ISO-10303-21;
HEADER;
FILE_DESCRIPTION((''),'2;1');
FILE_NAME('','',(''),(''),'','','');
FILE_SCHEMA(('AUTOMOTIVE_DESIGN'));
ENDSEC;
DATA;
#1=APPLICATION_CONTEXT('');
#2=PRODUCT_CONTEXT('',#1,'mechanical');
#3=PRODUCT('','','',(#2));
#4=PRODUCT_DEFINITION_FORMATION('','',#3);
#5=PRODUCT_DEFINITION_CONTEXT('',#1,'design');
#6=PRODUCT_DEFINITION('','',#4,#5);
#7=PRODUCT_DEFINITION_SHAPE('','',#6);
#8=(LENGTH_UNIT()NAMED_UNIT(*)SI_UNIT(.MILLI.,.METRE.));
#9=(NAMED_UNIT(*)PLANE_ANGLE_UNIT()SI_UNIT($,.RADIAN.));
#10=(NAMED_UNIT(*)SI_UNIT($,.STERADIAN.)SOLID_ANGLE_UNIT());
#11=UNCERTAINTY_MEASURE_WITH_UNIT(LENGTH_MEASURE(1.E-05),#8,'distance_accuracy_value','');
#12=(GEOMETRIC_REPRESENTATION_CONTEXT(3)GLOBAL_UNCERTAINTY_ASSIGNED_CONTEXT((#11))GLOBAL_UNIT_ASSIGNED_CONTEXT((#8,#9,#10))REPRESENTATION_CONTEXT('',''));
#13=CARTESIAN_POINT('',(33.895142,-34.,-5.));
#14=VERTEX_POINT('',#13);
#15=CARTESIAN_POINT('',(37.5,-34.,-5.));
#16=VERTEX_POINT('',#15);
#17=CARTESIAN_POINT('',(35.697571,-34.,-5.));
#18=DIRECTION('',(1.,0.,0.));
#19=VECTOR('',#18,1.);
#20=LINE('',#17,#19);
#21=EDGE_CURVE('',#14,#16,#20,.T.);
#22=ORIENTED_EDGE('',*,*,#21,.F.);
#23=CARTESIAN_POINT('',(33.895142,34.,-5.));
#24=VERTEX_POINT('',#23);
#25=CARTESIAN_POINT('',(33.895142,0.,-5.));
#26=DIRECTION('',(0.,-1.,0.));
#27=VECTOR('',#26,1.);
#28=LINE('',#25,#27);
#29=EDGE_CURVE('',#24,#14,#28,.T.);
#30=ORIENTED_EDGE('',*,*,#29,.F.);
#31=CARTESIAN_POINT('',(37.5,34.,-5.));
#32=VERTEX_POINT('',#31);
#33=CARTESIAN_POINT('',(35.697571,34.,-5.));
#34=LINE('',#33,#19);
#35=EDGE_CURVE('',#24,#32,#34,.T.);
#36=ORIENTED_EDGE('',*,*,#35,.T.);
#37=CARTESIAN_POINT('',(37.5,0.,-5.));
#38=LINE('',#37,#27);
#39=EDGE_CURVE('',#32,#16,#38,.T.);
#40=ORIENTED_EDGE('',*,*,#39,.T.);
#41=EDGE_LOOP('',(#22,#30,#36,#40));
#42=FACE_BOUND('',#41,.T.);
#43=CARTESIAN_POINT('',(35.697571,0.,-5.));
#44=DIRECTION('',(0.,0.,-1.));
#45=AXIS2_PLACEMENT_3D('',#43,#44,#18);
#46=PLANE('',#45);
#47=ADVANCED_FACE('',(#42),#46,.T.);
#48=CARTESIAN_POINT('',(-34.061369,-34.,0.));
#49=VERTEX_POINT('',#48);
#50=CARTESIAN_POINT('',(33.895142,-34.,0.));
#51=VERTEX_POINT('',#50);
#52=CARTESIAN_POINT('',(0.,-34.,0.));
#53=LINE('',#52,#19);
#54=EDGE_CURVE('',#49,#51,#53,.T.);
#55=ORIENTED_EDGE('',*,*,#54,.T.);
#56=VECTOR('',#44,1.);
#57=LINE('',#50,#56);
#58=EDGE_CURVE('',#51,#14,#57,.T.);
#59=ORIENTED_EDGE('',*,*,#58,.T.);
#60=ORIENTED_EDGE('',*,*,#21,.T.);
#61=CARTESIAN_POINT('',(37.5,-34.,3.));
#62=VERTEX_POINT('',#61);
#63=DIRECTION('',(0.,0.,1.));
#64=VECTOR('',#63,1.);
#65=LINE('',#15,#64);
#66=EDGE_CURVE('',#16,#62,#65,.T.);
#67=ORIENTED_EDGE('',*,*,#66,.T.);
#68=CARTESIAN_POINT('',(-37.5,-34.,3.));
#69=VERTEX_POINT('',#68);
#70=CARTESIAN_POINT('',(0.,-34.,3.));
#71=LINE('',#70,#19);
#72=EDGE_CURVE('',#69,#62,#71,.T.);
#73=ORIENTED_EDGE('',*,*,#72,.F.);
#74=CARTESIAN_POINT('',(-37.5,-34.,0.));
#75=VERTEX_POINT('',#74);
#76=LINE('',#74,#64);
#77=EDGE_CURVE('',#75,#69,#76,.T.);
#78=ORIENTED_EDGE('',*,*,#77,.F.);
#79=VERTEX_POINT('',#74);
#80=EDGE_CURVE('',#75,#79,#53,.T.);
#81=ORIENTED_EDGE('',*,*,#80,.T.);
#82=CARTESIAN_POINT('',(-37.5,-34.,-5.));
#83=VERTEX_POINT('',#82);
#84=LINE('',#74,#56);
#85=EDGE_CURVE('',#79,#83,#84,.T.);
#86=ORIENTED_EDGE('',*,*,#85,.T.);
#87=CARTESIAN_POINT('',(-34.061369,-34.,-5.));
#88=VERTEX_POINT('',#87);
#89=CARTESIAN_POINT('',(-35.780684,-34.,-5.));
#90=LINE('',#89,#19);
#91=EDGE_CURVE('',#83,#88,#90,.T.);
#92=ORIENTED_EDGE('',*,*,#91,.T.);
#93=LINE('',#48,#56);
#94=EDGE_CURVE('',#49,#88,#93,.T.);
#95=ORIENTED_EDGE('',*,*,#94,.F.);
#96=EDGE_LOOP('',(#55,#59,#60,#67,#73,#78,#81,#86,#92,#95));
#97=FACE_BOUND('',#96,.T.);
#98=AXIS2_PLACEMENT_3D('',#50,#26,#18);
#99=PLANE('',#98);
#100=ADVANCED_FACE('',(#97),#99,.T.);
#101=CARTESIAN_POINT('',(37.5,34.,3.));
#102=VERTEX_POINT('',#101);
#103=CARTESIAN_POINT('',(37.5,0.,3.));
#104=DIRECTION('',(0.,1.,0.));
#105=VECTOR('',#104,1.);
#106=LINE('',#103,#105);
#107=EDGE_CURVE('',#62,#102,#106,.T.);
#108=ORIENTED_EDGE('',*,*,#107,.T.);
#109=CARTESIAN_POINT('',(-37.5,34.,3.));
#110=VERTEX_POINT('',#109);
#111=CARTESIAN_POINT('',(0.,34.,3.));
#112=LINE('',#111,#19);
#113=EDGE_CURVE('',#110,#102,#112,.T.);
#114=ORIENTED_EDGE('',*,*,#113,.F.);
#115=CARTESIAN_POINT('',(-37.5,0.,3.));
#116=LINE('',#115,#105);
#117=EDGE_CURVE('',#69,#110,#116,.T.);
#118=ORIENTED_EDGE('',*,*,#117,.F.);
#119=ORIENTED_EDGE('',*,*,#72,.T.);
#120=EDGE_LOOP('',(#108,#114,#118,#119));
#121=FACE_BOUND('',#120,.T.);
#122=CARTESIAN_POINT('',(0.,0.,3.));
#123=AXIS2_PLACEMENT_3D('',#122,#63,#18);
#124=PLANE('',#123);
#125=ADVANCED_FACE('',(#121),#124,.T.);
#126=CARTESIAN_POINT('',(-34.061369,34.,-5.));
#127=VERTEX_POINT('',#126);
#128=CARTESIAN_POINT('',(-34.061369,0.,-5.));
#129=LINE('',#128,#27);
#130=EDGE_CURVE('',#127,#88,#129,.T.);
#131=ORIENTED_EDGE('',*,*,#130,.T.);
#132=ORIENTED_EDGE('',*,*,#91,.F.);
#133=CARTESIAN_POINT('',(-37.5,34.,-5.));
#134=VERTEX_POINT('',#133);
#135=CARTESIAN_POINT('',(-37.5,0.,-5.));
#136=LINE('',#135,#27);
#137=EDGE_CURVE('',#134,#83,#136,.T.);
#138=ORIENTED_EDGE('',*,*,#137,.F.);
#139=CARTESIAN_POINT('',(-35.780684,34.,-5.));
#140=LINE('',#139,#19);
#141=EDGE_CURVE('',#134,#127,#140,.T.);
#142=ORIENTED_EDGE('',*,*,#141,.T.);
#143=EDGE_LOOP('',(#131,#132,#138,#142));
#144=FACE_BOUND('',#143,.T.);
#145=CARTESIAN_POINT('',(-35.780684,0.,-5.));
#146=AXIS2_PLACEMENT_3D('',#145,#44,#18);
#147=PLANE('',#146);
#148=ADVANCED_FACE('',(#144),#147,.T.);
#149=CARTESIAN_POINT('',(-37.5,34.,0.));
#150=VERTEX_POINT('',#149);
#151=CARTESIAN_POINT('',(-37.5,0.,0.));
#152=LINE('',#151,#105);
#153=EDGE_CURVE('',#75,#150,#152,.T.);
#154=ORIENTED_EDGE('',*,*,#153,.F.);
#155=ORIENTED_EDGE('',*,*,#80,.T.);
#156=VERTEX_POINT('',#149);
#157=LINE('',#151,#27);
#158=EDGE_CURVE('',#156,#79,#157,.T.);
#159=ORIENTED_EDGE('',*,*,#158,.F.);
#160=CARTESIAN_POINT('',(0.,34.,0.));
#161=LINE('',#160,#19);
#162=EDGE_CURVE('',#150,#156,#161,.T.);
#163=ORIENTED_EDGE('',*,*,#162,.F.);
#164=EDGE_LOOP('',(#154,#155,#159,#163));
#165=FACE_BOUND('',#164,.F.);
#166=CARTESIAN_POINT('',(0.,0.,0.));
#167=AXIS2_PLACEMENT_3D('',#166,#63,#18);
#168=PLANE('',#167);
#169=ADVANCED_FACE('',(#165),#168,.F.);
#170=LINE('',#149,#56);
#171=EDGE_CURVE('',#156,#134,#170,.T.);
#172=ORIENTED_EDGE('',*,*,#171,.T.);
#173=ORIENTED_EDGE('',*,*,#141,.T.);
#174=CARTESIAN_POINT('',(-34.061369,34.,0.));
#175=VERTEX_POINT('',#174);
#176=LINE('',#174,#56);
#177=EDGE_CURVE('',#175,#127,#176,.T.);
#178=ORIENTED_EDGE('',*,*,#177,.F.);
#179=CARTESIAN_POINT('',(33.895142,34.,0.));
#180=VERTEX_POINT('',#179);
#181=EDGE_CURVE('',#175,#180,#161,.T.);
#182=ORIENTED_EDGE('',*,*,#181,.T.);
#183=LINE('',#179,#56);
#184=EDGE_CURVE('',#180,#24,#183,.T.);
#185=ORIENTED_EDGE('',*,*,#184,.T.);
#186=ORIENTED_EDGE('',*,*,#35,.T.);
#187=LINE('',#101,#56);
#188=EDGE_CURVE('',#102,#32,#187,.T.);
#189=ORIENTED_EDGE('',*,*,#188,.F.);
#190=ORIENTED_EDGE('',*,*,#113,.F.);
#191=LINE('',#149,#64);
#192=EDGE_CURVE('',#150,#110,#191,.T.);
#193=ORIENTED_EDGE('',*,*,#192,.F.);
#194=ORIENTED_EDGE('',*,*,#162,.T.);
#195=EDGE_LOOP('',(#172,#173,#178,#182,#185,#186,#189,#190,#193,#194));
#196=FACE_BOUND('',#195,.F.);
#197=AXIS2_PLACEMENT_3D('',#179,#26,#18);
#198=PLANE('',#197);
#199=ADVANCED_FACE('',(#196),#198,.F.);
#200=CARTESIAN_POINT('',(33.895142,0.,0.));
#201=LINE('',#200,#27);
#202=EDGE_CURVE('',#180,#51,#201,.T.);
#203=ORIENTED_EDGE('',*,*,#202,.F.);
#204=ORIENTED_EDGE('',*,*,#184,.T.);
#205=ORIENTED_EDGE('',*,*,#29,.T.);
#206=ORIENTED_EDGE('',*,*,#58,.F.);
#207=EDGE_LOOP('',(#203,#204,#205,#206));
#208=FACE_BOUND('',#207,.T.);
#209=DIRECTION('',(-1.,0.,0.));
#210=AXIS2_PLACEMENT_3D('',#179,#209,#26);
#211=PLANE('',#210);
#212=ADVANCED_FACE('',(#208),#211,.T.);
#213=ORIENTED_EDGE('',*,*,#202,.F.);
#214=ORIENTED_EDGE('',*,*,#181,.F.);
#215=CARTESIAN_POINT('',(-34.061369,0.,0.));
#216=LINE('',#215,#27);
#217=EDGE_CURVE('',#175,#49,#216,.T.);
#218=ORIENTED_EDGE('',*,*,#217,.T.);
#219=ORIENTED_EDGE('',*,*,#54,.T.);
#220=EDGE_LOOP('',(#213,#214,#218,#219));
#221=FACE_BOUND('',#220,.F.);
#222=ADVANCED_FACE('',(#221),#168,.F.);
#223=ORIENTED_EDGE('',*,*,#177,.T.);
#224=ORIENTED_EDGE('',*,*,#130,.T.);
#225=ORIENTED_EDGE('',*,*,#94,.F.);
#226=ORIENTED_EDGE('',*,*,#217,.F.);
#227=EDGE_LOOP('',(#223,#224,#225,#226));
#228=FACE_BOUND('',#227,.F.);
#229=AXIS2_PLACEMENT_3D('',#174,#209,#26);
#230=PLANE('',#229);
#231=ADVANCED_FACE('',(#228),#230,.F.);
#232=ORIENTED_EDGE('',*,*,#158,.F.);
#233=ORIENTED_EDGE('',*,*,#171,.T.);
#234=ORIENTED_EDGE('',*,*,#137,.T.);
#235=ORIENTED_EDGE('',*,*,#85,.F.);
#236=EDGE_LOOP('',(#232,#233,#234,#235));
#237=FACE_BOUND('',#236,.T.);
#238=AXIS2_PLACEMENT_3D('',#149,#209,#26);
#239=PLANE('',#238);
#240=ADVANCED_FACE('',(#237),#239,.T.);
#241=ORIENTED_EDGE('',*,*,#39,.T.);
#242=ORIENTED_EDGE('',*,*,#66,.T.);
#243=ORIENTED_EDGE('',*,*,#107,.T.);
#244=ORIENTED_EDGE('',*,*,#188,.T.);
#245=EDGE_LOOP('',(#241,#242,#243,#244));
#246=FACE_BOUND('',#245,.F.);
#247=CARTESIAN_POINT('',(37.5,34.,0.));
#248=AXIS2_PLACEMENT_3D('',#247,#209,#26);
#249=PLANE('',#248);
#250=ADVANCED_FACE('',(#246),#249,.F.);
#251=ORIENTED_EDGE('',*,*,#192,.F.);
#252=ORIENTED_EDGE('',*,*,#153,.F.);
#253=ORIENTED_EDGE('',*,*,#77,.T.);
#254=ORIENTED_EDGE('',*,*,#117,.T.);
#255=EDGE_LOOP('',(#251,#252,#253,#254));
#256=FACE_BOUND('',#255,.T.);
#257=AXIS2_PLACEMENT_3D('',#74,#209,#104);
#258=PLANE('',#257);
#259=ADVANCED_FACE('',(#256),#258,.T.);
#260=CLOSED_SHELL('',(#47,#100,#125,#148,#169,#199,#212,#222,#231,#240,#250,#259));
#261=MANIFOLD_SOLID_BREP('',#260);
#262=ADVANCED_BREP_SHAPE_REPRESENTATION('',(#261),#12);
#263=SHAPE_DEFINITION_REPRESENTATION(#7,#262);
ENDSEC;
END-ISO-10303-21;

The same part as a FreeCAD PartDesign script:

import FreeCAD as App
import Part
import Sketcher

doc = App.newDocument("Part")
body = doc.addObject("PartDesign::Body", "Body")

# Sketch on XY plane
sketch1 = body.newObject("Sketcher::SketchObject", "Sketch")
sketch1.AttachmentSupport = (doc.getObject("XY_Plane"), [""])
sketch1.MapMode = "FlatFace"
sketch1.addGeometry([
    Part.LineSegment(App.Vector(-37.5, 34, 0), App.Vector(-37.5, -34, 0)),
    Part.LineSegment(App.Vector(-37.5, -34, 0), App.Vector(37.5, -34, 0)),
    Part.LineSegment(App.Vector(37.5, -34, 0), App.Vector(37.5, 34, 0)),
    Part.LineSegment(App.Vector(37.5, 34, 0), App.Vector(-37.5, 34, 0)),
], False)
sketch1.addConstraint([
    Sketcher.Constraint("Coincident", 0, 2, 1, 1),
    Sketcher.Constraint("Coincident", 1, 2, 2, 1),
    Sketcher.Constraint("Coincident", 2, 2, 3, 1),
    Sketcher.Constraint("Coincident", 3, 2, 0, 1),
    Sketcher.Constraint("Vertical", 0),
    Sketcher.Constraint("Horizontal", 1),
    Sketcher.Constraint("Vertical", 2),
    Sketcher.Constraint("Horizontal", 3),
    Sketcher.Constraint("Symmetric", 0, 2, 2, 2, -1, 1),
    Sketcher.Constraint("DistanceX", 1, 1, 1, 2, 75.0),
    Sketcher.Constraint("DistanceY", 0, 2, 0, 1, 68.0),
])
pad1 = body.newObject("PartDesign::Pad", "Pad")
pad1.Profile = sketch1
pad1.Length = 3

# Sketch on XY plane
sketch2 = body.newObject("Sketcher::SketchObject", "Sketch001")
sketch2.AttachmentSupport = (doc.getObject("XY_Plane"), [""])
sketch2.MapMode = "FlatFace"
sketch2.addGeometry([
    Part.LineSegment(App.Vector(-37.5, -34, 0), App.Vector(-37.5, 34, 0)),  # 0
    Part.LineSegment(App.Vector(-37.5, 34, 0), App.Vector(-34.061369, 34, 0)),  # 1
    Part.LineSegment(App.Vector(-34.061369, 34, 0), App.Vector(-34.061369, -34, 0)),  # 2
    Part.LineSegment(App.Vector(-34.061369, -34, 0), App.Vector(-37.5, -34, 0)),  # 3
    Part.LineSegment(App.Vector(33.895142, -34, 0), App.Vector(33.895142, 34, 0)),  # 4
    Part.LineSegment(App.Vector(33.895142, 34, 0), App.Vector(37.5, 34, 0)),  # 5
    Part.LineSegment(App.Vector(37.5, 34, 0), App.Vector(37.5, -34, 0)),  # 6
    Part.LineSegment(App.Vector(37.5, -34, 0), App.Vector(33.895142, -34, 0)),  # 7
], False)
sketch2.addConstraint([
    Sketcher.Constraint("Coincident", 0, 2, 1, 1),
    Sketcher.Constraint("Coincident", 1, 2, 2, 1),
    Sketcher.Constraint("Coincident", 2, 2, 3, 1),
    Sketcher.Constraint("Coincident", 3, 2, 0, 1),
    Sketcher.Constraint("Coincident", 4, 2, 5, 1),
    Sketcher.Constraint("Coincident", 5, 2, 6, 1),
    Sketcher.Constraint("Coincident", 6, 2, 7, 1),
    Sketcher.Constraint("Coincident", 7, 2, 4, 1),
    Sketcher.Constraint("Vertical", 0),
    Sketcher.Constraint("Horizontal", 1),
    Sketcher.Constraint("Vertical", 2),
    Sketcher.Constraint("Horizontal", 3),
    Sketcher.Constraint("Vertical", 4),
    Sketcher.Constraint("Horizontal", 5),
    Sketcher.Constraint("Vertical", 6),
    Sketcher.Constraint("Horizontal", 7),
    Sketcher.Constraint("Symmetric", 3, 2, 5, 2, -1, 1),
    Sketcher.Constraint("Horizontal", 1, 2, 4, 2),
    Sketcher.Constraint("Horizontal", 3, 2, 6, 2),
    Sketcher.Constraint("DistanceY", 0, 1, 0, 2, 68.0),
    Sketcher.Constraint("DistanceX", 0, 2, 5, 2, 75.0),
    Sketcher.Constraint("DistanceX", 1, 1, 1, 2, 3.438631),
    Sketcher.Constraint("DistanceX", 5, 1, 5, 2, 3.604858),
])
pad2 = body.newObject("PartDesign::Pad", "Pad001")
pad2.Profile = sketch2
pad2.Length = 5
pad2.Reversed = True

doc.recompute()
